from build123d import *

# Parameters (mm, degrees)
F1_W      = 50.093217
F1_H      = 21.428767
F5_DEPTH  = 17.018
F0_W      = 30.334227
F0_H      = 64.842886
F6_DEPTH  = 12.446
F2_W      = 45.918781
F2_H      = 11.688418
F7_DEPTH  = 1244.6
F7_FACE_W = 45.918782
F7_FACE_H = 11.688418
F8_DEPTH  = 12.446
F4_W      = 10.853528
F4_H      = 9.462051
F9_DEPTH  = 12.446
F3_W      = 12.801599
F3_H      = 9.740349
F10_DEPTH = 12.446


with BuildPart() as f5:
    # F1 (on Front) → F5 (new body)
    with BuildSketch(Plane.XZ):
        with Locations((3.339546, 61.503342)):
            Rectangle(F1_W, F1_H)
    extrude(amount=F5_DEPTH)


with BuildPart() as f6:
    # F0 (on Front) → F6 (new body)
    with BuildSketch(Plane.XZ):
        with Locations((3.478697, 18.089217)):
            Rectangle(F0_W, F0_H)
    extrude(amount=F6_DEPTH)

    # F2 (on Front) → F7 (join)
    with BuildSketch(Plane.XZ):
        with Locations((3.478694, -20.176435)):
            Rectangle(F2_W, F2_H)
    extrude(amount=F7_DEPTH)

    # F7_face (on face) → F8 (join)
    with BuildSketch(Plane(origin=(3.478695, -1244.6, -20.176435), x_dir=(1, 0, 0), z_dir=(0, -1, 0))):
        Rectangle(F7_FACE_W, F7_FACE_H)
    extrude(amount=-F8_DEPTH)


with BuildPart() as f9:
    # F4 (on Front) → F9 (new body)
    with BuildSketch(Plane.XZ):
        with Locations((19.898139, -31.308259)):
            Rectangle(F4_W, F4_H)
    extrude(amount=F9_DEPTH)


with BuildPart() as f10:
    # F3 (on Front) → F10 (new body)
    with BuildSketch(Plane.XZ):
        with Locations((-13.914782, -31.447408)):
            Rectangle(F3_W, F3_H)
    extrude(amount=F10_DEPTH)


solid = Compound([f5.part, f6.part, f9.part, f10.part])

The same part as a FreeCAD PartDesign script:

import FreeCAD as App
import Part
import Sketcher
from FreeCAD import Vector
Q = App.Units.Quantity

doc = App.newDocument("Part")
params = doc.addObject("Spreadsheet::Sheet", "Params")
for row, (alias, value) in enumerate([
    ("pad1_length", "0.67 in"),
    ("pad2_length", "0.49 in"),
    ("pad3_length", "49 in"),
    ("pad4_length", "0.49 in"),
    ("pad5_length", "0.49 in"),
    ("sketch6_width", "0.504 in"),
    ("pad6_length", "0.49 in"),
], start=1):
    params.set(f"A{row}", alias)
    params.set(f"B{row}", "=" + value)
    params.setAlias(f"B{row}", alias)

body = doc.addObject("PartDesign::Body", "Body")

# Sketch on XZ plane
sketch1 = doc.addObject("Sketcher::SketchObject", "Sketch")
body.addObject(sketch1)
sketch1.AttachmentSupport = (doc.XZ_Plane, [""])
sketch1.MapMode = "FlatFace"
sketch1.addGeometry([
    Part.LineSegment(Vector(-22, 72, 0), Vector(-22, 51, 0)),
    Part.LineSegment(Vector(-22, 51, 0), Vector(28, 51, 0)),
    Part.LineSegment(Vector(28, 51, 0), Vector(28, 72, 0)),
    Part.LineSegment(Vector(28, 72, 0), Vector(-22, 72, 0)),
], False)
sketch1.addConstraint([
    Sketcher.Constraint("Coincident", 0, 2, 1, 1),
    Sketcher.Constraint("Coincident", 1, 2, 2, 1),
    Sketcher.Constraint("Coincident", 2, 2, 3, 1),
    Sketcher.Constraint("Coincident", 3, 2, 0, 1),
    Sketcher.Constraint("Vertical", 0),
    Sketcher.Constraint("Horizontal", 1),
    Sketcher.Constraint("Vertical", 2),
    Sketcher.Constraint("Horizontal", 3),
    Sketcher.Constraint("DistanceX", 1, 1, 1, 2, Q("50.093217 mm")),
    Sketcher.Constraint("DistanceY", 0, 2, 0, 1, Q("21.428767 mm")),
    Sketcher.Constraint("DistanceY", -1, 1, 0, 2, Q("50.788958 mm")),
    Sketcher.Constraint("DistanceX", 0, 2, -1, 1, Q("21.707062 mm")),
])
pad1 = doc.addObject("PartDesign::Pad", "Pad")
body.addObject(pad1)
pad1.Profile = sketch1
pad1.setExpression("Length", "Params.pad1_length")
body2 = doc.addObject("PartDesign::Body", "Body001")

# Sketch on XZ plane
sketch2 = doc.addObject("Sketcher::SketchObject", "Sketch001")
body2.addObject(sketch2)
sketch2.AttachmentSupport = (doc.getObject("XZ_Plane001"), [""])
sketch2.MapMode = "FlatFace"
sketch2.addGeometry([
    Part.LineSegment(Vector(-12, 51, 0), Vector(-12, -14, 0)),
    Part.LineSegment(Vector(-12, -14, 0), Vector(19, -14, 0)),
    Part.LineSegment(Vector(19, -14, 0), Vector(19, 51, 0)),
    Part.LineSegment(Vector(19, 51, 0), Vector(-12, 51, 0)),
], False)
sketch2.addConstraint([
    Sketcher.Constraint("Coincident", 0, 2, 1, 1),
    Sketcher.Constraint("Coincident", 1, 2, 2, 1),
    Sketcher.Constraint("Coincident", 2, 2, 3, 1),
    Sketcher.Constraint("Coincident", 3, 2, 0, 1),
    Sketcher.Constraint("Vertical", 0),
    Sketcher.Constraint("Horizontal", 1),
    Sketcher.Constraint("Vertical", 2),
    Sketcher.Constraint("Horizontal", 3),
    Sketcher.Constraint("DistanceX", 1, 1, 1, 2, Q("30.334227 mm")),
    Sketcher.Constraint("DistanceY", 0, 2, 0, 1, Q("64.842886 mm")),
    Sketcher.Constraint("DistanceX", -1, 1, 1, 2, Q("18.64581 mm")),
    Sketcher.Constraint("DistanceY", -1, 1, 2, 2, Q("50.51066 mm")),
])
pad2 = doc.addObject("PartDesign::Pad", "Pad001")
body2.addObject(pad2)
pad2.Profile = sketch2
pad2.setExpression("Length", "Params.pad2_length")

# Sketch on XZ plane
sketch3 = doc.addObject("Sketcher::SketchObject", "Sketch002")
body2.addObject(sketch3)
sketch3.AttachmentSupport = (doc.getObject("XZ_Plane001"), [""])
sketch3.MapMode = "FlatFace"
sketch3.addGeometry([
    Part.LineSegment(Vector(-19, -14, 0), Vector(-19, -26, 0)),
    Part.LineSegment(Vector(-19, -26, 0), Vector(26, -26, 0)),
    Part.LineSegment(Vector(26, -26, 0), Vector(26, -14, 0)),
    Part.LineSegment(Vector(26, -14, 0), Vector(-19, -14, 0)),
], False)
sketch3.addConstraint([
    Sketcher.Constraint("Coincident", 0, 2, 1, 1),
    Sketcher.Constraint("Coincident", 1, 2, 2, 1),
    Sketcher.Constraint("Coincident", 2, 2, 3, 1),
    Sketcher.Constraint("Coincident", 3, 2, 0, 1),
    Sketcher.Constraint("Vertical", 0),
    Sketcher.Constraint("Horizontal", 1),
    Sketcher.Constraint("Vertical", 2),
    Sketcher.Constraint("Horizontal", 3),
    Sketcher.Constraint("DistanceX", 1, 1, 1, 2, Q("45.918781 mm")),
    Sketcher.Constraint("DistanceY", 0, 2, 0, 1, Q("11.688418 mm")),
    Sketcher.Constraint("DistanceX", 0, 2, -1, 1, Q("19.480697 mm")),
    Sketcher.Constraint("DistanceY", 0, 2, -1, 1, Q("26.020644 mm")),
])
pad3 = doc.addObject("PartDesign::Pad", "Pad002")
body2.addObject(pad3)
pad3.Profile = sketch3
pad3.setExpression("Length", "Params.pad3_length")

# Sketch on XZ plane
sketch4 = doc.addObject("Sketcher::SketchObject", "Sketch003")
body2.addObject(sketch4)
sketch4.AttachmentSupport = (doc.getObject("XZ_Plane001"), [""])
sketch4.MapMode = "FlatFace"
sketch4.AttachmentOffset = App.Placement(Vector(0, 0, 49 * 25.4), App.Rotation())
sketch4.addGeometry([
    Part.LineSegment(Vector(-19, -14, 0), Vector(-19, -26, 0)),
    Part.LineSegment(Vector(-19, -26, 0), Vector(26, -26, 0)),
    Part.LineSegment(Vector(26, -26, 0), Vector(26, -14, 0)),
    Part.LineSegment(Vector(26, -14, 0), Vector(-19, -14, 0)),
], False)
sketch4.addConstraint([
    Sketcher.Constraint("Coincident", 0, 2, 1, 1),
    Sketcher.Constraint("Coincident", 1, 2, 2, 1),
    Sketcher.Constraint("Coincident", 2, 2, 3, 1),
    Sketcher.Constraint("Coincident", 3, 2, 0, 1),
    Sketcher.Constraint("Vertical", 0),
    Sketcher.Constraint("Horizontal", 1),
    Sketcher.Constraint("Vertical", 2),
    Sketcher.Constraint("Horizontal", 3),
    Sketcher.Constraint("DistanceX", 1, 1, 1, 2, Q("45.918782 mm")),
    Sketcher.Constraint("DistanceY", 0, 2, 0, 1, Q("11.688418 mm")),
    Sketcher.Constraint("DistanceX", 0, 2, -1, 1, Q("19.480696 mm")),
    Sketcher.Constraint("DistanceY", 0, 2, -1, 1, Q("26.020644 mm")),
])
pad4 = doc.addObject("PartDesign::Pad", "Pad003")
body2.addObject(pad4)
pad4.Profile = sketch4
pad4.setExpression("Length", "Params.pad4_length")
pad4.Reversed = True
body3 = doc.addObject("PartDesign::Body", "Body002")

# Sketch on XZ plane
sketch5 = doc.addObject("Sketcher::SketchObject", "Sketch004")
body3.addObject(sketch5)
sketch5.AttachmentSupport = (doc.getObject("XZ_Plane002"), [""])
sketch5.MapMode = "FlatFace"
sketch5.addGeometry([
    Part.LineSegment(Vector(14, -27, 0), Vector(14, -36, 0)),
    Part.LineSegment(Vector(14, -36, 0), Vector(25, -36, 0)),
    Part.LineSegment(Vector(25, -36, 0), Vector(25, -27, 0)),
    Part.LineSegment(Vector(25, -27, 0), Vector(14, -27, 0)),
], False)
sketch5.addConstraint([
    Sketcher.Constraint("Coincident", 0, 2, 1, 1),
    Sketcher.Constraint("Coincident", 1, 2, 2, 1),
    Sketcher.Constraint("Coincident", 2, 2, 3, 1),
    Sketcher.Constraint("Coincident", 3, 2, 0, 1),
    Sketcher.Constraint("Vertical", 0),
    Sketcher.Constraint("Horizontal", 1),
    Sketcher.Constraint("Vertical", 2),
    Sketcher.Constraint("Horizontal", 3),
    Sketcher.Constraint("DistanceY", 0, 2, 0, 1, Q("9.462051 mm")),
    Sketcher.Constraint("DistanceX", 1, 1, 1, 2, Q("10.853528 mm")),
    Sketcher.Constraint("DistanceX", -1, 1, 0, 2, Q("14.471375 mm")),
    Sketcher.Constraint("DistanceY", 0, 2, -1, 1, Q("36.039285 mm")),
])
pad5 = doc.addObject("PartDesign::Pad", "Pad004")
body3.addObject(pad5)
pad5.Profile = sketch5
pad5.setExpression("Length", "Params.pad5_length")
body4 = doc.addObject("PartDesign::Body", "Body003")

# Sketch on XZ plane
sketch6 = doc.addObject("Sketcher::SketchObject", "Sketch005")
body4.addObject(sketch6)
sketch6.AttachmentSupport = (doc.getObject("XZ_Plane003"), [""])
sketch6.MapMode = "FlatFace"
sketch6.addGeometry([
    Part.LineSegment(Vector(-20, -27, 0), Vector(-20, -36, 0)),
    Part.LineSegment(Vector(-20, -36, 0), Vector(-8, -36, 0)),
    Part.LineSegment(Vector(-8, -36, 0), Vector(-8, -27, 0)),
    Part.LineSegment(Vector(-8, -27, 0), Vector(-20, -27, 0)),
], False)
sketch6.addConstraint([
    Sketcher.Constraint("Coincident", 0, 2, 1, 1),
    Sketcher.Constraint("Coincident", 1, 2, 2, 1),
    Sketcher.Constraint("Coincident", 2, 2, 3, 1),
    Sketcher.Constraint("Coincident", 3, 2, 0, 1),
    Sketcher.Constraint("Vertical", 0),
    Sketcher.Constraint("Horizontal", 1),
    Sketcher.Constraint("Vertical", 2),
    Sketcher.Constraint("Horizontal", 3),
    Sketcher.Constraint("DistanceX", 1, 1, 1, 2, Q("0.504 in")),
    Sketcher.Constraint("DistanceY", 0, 2, 0, 1, Q("9.740349 mm")),
    Sketcher.Constraint("DistanceX", 0, 2, -1, 1, Q("20.315582 mm")),
    Sketcher.Constraint("DistanceY", 0, 2, -1, 1, Q("36.317583 mm")),
])
sketch6.setExpression("Constraints[8]", "Params.sketch6_width")
pad6 = doc.addObject("PartDesign::Pad", "Pad005")
body4.addObject(pad6)
pad6.Profile = sketch6
pad6.setExpression("Length", "Params.pad6_length")

doc.recompute()
